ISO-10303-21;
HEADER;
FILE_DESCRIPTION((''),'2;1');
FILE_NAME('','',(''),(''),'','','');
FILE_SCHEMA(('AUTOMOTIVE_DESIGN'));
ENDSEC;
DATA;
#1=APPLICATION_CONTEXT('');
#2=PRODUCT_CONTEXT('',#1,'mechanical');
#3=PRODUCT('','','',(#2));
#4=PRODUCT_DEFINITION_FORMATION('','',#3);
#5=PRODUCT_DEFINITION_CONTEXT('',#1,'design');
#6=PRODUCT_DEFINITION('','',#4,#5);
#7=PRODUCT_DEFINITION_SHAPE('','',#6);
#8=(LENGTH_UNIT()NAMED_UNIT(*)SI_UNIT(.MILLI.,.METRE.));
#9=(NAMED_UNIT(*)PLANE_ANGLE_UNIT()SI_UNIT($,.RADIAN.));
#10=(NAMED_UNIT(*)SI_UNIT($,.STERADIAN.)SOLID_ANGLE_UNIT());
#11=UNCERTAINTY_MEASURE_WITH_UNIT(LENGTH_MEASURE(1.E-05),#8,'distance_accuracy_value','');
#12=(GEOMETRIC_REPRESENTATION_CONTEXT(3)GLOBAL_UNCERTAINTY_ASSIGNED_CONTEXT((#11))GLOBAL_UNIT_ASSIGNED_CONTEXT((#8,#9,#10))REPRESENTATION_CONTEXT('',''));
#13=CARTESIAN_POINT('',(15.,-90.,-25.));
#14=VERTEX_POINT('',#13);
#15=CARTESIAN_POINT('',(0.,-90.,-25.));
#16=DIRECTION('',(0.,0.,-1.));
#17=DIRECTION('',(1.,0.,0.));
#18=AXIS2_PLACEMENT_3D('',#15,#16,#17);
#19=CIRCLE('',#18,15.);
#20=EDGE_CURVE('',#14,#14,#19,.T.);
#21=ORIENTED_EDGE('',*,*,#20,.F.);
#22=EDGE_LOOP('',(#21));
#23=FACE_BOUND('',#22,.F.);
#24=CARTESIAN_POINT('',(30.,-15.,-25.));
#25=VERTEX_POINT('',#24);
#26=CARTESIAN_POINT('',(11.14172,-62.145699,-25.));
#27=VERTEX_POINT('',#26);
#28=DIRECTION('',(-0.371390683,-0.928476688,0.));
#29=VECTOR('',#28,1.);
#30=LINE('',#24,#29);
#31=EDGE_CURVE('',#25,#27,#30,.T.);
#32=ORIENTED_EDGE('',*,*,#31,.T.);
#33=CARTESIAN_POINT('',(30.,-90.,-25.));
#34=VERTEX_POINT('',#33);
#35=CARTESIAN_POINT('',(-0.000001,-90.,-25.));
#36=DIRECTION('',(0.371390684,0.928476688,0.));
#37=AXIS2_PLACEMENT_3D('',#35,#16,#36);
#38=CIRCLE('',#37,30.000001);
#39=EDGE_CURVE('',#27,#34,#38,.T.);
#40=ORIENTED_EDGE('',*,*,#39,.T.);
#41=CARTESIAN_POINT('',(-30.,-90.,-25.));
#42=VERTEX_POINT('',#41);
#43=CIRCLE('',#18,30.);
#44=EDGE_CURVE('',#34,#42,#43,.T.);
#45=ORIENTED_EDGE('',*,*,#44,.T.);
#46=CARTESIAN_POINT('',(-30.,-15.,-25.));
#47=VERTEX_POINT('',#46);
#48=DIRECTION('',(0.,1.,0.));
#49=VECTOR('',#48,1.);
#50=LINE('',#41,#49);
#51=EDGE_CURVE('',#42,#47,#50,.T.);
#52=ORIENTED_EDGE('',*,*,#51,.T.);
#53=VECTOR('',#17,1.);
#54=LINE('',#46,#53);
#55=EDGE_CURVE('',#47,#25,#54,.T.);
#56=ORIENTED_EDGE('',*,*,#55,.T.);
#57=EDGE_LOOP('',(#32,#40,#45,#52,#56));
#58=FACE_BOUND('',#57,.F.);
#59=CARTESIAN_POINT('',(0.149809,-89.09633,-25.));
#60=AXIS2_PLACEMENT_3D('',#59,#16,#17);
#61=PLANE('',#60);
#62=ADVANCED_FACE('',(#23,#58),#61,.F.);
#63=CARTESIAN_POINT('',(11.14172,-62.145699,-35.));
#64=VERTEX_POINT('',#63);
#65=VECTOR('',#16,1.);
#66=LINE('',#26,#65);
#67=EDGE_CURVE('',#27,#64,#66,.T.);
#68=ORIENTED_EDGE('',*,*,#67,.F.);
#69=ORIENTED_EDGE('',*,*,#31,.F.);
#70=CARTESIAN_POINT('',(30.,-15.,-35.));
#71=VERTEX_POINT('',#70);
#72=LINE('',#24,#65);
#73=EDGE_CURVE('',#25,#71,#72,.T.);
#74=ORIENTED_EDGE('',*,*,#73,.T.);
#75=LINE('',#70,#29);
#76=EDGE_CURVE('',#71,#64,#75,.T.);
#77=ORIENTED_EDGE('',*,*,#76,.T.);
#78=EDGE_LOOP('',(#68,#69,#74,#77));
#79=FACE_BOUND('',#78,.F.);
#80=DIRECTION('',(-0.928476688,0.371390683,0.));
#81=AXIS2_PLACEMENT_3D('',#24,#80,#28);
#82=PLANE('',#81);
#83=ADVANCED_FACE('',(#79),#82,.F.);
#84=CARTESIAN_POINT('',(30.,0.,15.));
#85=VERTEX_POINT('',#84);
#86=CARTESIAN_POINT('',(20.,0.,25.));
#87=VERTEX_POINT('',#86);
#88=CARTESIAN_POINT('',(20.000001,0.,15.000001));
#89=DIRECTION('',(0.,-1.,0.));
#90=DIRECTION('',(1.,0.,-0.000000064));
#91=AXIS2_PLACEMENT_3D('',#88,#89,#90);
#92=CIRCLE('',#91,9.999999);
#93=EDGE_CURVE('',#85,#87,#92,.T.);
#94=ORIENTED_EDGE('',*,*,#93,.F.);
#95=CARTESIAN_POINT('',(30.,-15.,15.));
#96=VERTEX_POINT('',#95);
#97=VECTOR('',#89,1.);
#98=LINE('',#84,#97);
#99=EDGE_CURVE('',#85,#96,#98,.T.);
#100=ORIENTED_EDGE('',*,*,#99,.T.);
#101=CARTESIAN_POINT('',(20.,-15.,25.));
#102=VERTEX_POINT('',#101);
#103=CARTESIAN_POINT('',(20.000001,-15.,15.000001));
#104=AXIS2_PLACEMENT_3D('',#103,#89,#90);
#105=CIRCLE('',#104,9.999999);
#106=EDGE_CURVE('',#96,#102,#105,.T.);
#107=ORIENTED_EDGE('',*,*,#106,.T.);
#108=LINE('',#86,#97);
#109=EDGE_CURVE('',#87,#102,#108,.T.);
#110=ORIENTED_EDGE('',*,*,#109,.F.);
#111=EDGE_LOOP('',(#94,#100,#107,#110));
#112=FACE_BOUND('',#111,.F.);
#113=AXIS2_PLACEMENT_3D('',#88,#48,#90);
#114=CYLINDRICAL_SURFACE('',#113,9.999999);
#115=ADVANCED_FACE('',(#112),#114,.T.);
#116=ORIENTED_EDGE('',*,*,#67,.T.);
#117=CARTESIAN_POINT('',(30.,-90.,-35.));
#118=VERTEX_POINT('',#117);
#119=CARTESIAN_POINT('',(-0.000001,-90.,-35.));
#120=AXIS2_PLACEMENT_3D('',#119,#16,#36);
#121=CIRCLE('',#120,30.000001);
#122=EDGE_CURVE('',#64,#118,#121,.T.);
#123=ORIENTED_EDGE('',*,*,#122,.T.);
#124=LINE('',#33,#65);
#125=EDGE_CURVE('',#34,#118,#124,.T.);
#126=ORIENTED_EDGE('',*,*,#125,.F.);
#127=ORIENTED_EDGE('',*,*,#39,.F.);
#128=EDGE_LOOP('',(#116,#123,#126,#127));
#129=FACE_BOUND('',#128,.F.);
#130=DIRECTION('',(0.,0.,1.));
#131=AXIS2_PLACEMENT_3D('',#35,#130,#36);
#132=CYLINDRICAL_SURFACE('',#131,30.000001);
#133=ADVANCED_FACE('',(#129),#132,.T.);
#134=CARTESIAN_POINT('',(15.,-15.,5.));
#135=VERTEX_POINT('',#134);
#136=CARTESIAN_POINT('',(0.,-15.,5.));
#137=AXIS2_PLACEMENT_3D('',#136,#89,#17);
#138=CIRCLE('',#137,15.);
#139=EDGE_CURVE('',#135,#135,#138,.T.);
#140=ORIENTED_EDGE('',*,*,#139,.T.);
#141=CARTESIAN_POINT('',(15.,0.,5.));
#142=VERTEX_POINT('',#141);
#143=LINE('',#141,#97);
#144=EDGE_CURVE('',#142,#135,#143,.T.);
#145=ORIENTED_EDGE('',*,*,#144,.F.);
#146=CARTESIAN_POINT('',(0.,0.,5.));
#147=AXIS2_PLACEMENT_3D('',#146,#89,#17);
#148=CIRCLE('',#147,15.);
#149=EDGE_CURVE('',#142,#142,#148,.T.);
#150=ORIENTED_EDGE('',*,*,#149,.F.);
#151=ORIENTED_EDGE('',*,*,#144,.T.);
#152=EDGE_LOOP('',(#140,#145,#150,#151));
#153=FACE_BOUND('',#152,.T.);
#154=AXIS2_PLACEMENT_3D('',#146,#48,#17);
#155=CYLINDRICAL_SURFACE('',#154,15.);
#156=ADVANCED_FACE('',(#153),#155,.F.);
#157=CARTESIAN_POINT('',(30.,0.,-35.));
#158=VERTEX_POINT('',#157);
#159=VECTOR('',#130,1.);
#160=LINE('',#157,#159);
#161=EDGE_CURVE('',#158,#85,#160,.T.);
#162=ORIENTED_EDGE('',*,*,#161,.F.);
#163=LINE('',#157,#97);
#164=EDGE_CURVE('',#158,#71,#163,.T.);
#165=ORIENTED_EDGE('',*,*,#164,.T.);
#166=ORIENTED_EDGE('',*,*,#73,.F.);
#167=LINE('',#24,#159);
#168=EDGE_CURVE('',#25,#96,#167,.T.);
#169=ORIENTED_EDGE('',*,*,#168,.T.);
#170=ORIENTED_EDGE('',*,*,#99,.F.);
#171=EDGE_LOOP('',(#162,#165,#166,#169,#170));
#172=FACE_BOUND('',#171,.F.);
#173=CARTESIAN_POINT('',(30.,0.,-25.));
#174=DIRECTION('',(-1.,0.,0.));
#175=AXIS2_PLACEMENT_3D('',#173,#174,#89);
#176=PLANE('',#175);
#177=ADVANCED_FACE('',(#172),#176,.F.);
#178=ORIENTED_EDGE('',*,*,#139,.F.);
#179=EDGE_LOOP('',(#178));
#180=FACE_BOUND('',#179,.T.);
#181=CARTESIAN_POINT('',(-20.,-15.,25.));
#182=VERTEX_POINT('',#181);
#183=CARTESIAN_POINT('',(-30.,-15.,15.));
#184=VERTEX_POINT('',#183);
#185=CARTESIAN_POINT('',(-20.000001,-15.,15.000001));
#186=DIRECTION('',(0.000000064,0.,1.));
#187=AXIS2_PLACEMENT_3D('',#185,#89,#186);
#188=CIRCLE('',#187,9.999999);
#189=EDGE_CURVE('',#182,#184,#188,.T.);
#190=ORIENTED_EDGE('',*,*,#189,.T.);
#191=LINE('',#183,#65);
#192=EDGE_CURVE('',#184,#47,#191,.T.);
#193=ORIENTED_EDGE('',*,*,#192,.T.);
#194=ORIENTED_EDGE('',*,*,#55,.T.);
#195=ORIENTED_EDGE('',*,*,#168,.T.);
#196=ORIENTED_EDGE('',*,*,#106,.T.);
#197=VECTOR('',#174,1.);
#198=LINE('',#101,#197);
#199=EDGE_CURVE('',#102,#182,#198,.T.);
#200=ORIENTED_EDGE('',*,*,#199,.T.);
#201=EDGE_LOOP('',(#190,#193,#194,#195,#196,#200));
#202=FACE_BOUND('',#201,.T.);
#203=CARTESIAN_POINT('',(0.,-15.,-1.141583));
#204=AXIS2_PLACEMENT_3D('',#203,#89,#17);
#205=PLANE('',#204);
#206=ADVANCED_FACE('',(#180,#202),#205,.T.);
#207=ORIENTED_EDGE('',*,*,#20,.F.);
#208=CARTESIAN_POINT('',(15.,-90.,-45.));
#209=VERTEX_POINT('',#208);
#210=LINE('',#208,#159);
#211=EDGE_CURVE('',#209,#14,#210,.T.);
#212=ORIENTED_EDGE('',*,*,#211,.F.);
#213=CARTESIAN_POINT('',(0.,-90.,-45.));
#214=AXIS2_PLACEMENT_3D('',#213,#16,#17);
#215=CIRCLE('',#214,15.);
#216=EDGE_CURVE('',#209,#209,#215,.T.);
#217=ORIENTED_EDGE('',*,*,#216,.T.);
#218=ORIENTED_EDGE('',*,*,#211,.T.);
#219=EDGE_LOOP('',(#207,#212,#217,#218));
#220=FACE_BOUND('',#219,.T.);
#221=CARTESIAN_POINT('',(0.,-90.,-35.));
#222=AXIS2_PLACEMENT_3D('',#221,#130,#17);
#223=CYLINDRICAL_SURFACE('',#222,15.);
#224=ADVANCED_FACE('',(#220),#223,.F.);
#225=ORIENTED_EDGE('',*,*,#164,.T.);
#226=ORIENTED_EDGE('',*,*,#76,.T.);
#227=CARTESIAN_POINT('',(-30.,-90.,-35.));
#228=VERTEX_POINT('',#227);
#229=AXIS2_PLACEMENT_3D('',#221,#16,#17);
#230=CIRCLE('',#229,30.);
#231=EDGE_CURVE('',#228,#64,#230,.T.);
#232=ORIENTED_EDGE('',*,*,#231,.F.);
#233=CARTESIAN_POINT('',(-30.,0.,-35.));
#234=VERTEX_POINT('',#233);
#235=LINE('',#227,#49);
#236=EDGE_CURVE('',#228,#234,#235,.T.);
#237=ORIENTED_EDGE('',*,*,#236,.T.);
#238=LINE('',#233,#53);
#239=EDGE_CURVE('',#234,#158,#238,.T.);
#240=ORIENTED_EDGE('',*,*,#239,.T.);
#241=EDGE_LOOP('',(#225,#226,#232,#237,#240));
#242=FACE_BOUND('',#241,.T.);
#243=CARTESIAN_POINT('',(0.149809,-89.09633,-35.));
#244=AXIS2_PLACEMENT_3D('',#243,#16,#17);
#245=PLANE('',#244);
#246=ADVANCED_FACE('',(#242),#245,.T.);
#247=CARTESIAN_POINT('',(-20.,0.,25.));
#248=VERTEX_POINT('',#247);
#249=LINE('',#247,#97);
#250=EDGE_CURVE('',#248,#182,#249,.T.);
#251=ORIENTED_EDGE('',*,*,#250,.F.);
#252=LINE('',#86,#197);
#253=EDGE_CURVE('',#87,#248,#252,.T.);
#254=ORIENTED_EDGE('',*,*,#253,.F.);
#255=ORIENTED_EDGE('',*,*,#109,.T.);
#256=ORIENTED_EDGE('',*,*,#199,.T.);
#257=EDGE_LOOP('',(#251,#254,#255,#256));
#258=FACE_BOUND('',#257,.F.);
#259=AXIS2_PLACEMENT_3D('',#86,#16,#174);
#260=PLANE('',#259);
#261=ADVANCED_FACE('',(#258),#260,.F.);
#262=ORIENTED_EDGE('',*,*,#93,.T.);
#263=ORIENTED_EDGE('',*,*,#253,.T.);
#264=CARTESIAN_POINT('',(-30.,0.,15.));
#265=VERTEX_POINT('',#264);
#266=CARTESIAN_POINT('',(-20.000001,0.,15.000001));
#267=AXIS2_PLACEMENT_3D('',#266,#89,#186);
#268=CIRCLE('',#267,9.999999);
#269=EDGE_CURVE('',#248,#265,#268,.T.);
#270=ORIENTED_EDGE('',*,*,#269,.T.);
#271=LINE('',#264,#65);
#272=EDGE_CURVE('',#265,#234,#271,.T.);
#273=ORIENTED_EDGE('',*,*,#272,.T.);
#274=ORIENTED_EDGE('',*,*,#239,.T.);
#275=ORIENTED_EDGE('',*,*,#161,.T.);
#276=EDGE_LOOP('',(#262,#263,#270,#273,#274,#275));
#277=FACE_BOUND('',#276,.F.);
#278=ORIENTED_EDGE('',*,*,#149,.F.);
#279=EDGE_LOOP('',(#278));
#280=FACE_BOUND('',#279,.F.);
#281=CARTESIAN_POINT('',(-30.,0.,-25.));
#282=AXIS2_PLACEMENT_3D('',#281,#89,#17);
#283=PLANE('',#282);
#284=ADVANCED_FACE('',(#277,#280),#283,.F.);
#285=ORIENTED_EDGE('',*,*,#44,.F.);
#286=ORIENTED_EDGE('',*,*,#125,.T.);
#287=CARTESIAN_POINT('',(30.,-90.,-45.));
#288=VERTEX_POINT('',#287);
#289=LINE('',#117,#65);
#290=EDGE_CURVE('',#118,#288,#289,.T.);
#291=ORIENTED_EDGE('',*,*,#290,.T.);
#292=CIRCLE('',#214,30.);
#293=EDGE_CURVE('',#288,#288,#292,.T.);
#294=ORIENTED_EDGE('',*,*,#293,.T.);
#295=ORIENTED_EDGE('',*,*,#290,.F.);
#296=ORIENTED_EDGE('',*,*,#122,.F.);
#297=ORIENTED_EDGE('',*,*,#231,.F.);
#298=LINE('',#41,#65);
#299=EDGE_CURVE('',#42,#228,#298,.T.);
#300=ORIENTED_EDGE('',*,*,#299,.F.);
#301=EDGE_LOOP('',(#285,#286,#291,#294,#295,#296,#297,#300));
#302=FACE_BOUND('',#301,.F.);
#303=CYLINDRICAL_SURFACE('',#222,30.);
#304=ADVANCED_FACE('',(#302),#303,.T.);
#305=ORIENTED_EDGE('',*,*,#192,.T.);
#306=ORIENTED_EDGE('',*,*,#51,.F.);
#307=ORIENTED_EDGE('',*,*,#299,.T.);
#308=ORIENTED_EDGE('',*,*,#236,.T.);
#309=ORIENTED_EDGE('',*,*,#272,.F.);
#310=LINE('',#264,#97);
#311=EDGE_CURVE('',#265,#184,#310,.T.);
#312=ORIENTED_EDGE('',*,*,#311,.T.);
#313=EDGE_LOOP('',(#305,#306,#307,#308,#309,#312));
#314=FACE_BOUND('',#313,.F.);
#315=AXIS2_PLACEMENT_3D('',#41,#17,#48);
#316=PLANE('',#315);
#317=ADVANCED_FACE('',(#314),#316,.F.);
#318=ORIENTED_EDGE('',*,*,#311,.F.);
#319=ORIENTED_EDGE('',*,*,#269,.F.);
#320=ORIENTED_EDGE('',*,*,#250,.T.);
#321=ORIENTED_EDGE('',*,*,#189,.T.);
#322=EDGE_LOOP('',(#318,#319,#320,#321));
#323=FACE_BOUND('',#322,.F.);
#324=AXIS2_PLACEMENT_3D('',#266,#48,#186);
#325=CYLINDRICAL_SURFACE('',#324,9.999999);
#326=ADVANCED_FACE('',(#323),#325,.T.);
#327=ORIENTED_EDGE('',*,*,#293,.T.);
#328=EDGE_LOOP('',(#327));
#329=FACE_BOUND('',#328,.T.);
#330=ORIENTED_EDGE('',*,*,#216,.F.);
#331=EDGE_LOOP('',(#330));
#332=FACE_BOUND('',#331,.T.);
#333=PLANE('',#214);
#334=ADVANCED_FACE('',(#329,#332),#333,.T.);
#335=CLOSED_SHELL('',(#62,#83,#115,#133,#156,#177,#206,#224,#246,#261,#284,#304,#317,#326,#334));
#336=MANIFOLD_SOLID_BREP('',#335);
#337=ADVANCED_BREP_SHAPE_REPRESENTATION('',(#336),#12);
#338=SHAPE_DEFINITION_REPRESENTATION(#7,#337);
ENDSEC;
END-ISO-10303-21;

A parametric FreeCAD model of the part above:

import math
import FreeCAD as App
import Part
import Sketcher
from FreeCAD import Vector

doc = App.newDocument("Part")
body = doc.addObject("PartDesign::Body", "Body")

# Sketch on XZ plane
sketch1 = doc.addObject("Sketcher::SketchObject", "Sketch")
body.addObject(sketch1)
sketch1.AttachmentSupport = (doc.XZ_Plane, [""])
sketch1.MapMode = "FlatFace"
sketch1.addGeometry(Part.ArcOfCircle(Part.Circle(Vector(20.000001, 15.000001, 0), Vector(0, 0, 1), 9.999999), math.radians(-0.000004), math.radians(90.000004)), False)
sketch1.addGeometry(Part.LineSegment(Vector(20, 25, 0), Vector(-20, 25, 0)), False)
sketch1.addGeometry(Part.ArcOfCircle(Part.Circle(Vector(-20.000001, 15.000001, 0), Vector(0, 0, 1), 9.999999), math.radians(89.999996), math.radians(180.000004)), False)
sketch1.addGeometry(Part.LineSegment(Vector(-30, 15, 0), Vector(-30, -25, 0)), False)
sketch1.addGeometry(Part.LineSegment(Vector(-30, -25, 0), Vector(30, -25, 0)), False)
sketch1.addGeometry(Part.LineSegment(Vector(30, -25, 0), Vector(30, 15, 0)), False)
sketch1.addGeometry(Part.Circle(Vector(0, 5, 0), Vector(0, 0, 1), 15), False)
sketch1.addConstraint(Sketcher.Constraint("Tangent", 0, 2, 1, 1))
sketch1.addConstraint(Sketcher.Constraint("Tangent", 1, 2, 2, 1))
sketch1.addConstraint(Sketcher.Constraint("Tangent", 2, 2, 3, 1))
sketch1.addConstraint(Sketcher.Constraint("Coincident", 3, 2, 4, 1))
sketch1.addConstraint(Sketcher.Constraint("Coincident", 4, 2, 5, 1))
sketch1.addConstraint(Sketcher.Constraint("Tangent", 5, 2, 0, 1))
sketch1.addConstraint(Sketcher.Constraint("Horizontal", 1))
sketch1.addConstraint(Sketcher.Constraint("Vertical", 3))
sketch1.addConstraint(Sketcher.Constraint("Horizontal", 4))
sketch1.addConstraint(Sketcher.Constraint("Vertical", 5))
sketch1.addConstraint(Sketcher.Constraint("Equal", 0, 2))
sketch1.addConstraint(Sketcher.Constraint("PointOnObject", 6, 3, -2))
sketch1.addConstraint(Sketcher.Constraint("Equal", 1, 3))
sketch1.addConstraint(Sketcher.Constraint("Diameter", 6, 30.0))
sketch1.addConstraint(Sketcher.Constraint("Radius", 0, 9.999999))
sketch1.addConstraint(Sketcher.Constraint("DistanceX", 1, 2, 1, 1, 40.0))
sketch1.addConstraint(Sketcher.Constraint("DistanceX", -1, 1, 0, 3, 20.000001))
sketch1.addConstraint(Sketcher.Constraint("DistanceY", -1, 1, 0, 3, 15.000001))
sketch1.addConstraint(Sketcher.Constraint("DistanceY", -1, 1, 6, 3, 5.0))
pad1 = doc.addObject("PartDesign::Pad", "Pad")
body.addObject(pad1)
pad1.Profile = sketch1
pad1.Length = 15

# Sketch on XY plane
sketch2 = doc.addObject("Sketcher::SketchObject", "Sketch001")
body.addObject(sketch2)
sketch2.AttachmentSupport = (doc.XY_Plane, [""])
sketch2.MapMode = "FlatFace"
sketch2.AttachmentOffset = App.Placement(Vector(0, 0, -25), App.Rotation())
sketch2.addGeometry(Part.ArcOfCircle(Part.Circle(Vector(-0.000001, -90, 0), Vector(0, 0, 1), 30.000001), math.radians(0.000001), math.radians(68.19859)), False)
sketch2.addGeometry(Part.ArcOfCircle(Part.Circle(Vector(0, -90, 0), Vector(0, 0, 1), 30), math.radians(180), math.radians(360)), False)
sketch2.addGeometry(Part.LineSegment(Vector(-30, -90, 0), Vector(-30, 0, 0)), False)
sketch2.addGeometry(Part.LineSegment(Vector(-30, 0, 0), Vector(30, 0, 0)), False)
sketch2.addGeometry(Part.LineSegment(Vector(30, 0, 0), Vector(30, -15, 0)), False)
sketch2.addGeometry(Part.LineSegment(Vector(30, -15, 0), Vector(11.14172, -62.145699, 0)), False)
sketch2.addGeometry(Part.Circle(Vector(0, -90, 0), Vector(0, 0, 1), 15), False)
sketch2.addConstraint(Sketcher.Constraint("Tangent", 0, 1, 1, 2))
sketch2.addConstraint(Sketcher.Constraint("Tangent", 1, 1, 2, 1))
sketch2.addConstraint(Sketcher.Constraint("Coincident", 2, 2, 3, 1))
sketch2.addConstraint(Sketcher.Constraint("Coincident", 3, 2, 4, 1))
sketch2.addConstraint(Sketcher.Constraint("Coincident", 4, 2, 5, 1))
sketch2.addConstraint(Sketcher.Constraint("Coincident", 5, 2, 0, 2))
sketch2.addConstraint(Sketcher.Constraint("Vertical", 2))
sketch2.addConstraint(Sketcher.Constraint("Horizontal", 3))
sketch2.addConstraint(Sketcher.Constraint("Vertical", 4))
sketch2.addConstraint(Sketcher.Constraint("Coincident", 6, 3, 0, 3))
sketch2.addConstraint(Sketcher.Constraint("Equal", 0, 1))
sketch2.addConstraint(Sketcher.Constraint("Symmetric", 2, 2, 3, 2, -1, 1))
sketch2.addConstraint(Sketcher.Constraint("Symmetric", 0, 1, 1, 1, -2))
sketch2.addConstraint(Sketcher.Constraint("Diameter", 6, 30.0))
sketch2.addConstraint(Sketcher.Constraint("Radius", 0, 30.000001))
sketch2.addConstraint(Sketcher.Constraint("DistanceY", 2, 1, 2, 2, 90.0))
sketch2.addConstraint(Sketcher.Constraint("DistanceY", 4, 2, 4, 1, 15.0))
sketch2.addConstraint(Sketcher.Constraint("DistanceY", 5, 2, -1, 1, 62.145699))
pad2 = doc.addObject("PartDesign::Pad", "Pad001")
body.addObject(pad2)
pad2.Profile = sketch2
pad2.Length = 10
pad2.Reversed = True

# Sketch on XY plane
sketch3 = doc.addObject("Sketcher::SketchObject", "Sketch002")
body.addObject(sketch3)
sketch3.AttachmentSupport = (doc.XY_Plane, [""])
sketch3.MapMode = "FlatFace"
sketch3.AttachmentOffset = App.Placement(Vector(0, 0, -35), App.Rotation())
sketch3.addGeometry(Part.Circle(Vector(0, -90, 0), Vector(0, 0, 1), 30), False)
sketch3.addGeometry(Part.Circle(Vector(0, -90, 0), Vector(0, 0, 1), 15), False)
sketch3.addConstraint(Sketcher.Constraint("Coincident", 1, 3, 0, 3))
sketch3.addConstraint(Sketcher.Constraint("PointOnObject", 0, 3, -2))
sketch3.addConstraint(Sketcher.Constraint("Diameter", 0, 60.0))
sketch3.addConstraint(Sketcher.Constraint("Diameter", 1, 30.0))
sketch3.addConstraint(Sketcher.Constraint("DistanceY", 0, 3, -1, 1, 90.0))
pad3 = doc.addObject("PartDesign::Pad", "Pad002")
body.addObject(pad3)
pad3.Profile = sketch3
pad3.Length = 10
pad3.Reversed = True

doc.recompute()
